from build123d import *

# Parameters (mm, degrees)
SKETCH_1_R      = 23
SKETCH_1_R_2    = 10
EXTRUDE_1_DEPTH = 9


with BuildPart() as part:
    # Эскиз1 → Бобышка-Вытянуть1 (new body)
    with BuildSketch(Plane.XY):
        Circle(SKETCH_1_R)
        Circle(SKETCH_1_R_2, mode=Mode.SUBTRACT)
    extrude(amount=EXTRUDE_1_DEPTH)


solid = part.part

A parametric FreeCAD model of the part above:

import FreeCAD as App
import Part
import Sketcher

V = App.Vector

doc = App.newDocument("Part")
body = doc.addObject("PartDesign::Body", "Body")

# Sketch on XY plane
sketch1 = body.newObject("Sketcher::SketchObject", "Sketch")
sketch1.AttachmentSupport = (doc.getObject("XY_Plane"), [""])
sketch1.MapMode = "FlatFace"
sketch1.addGeometry([
    Part.Circle(V(0, 0, 0), V(0, 0, 1), 23),
    Part.Circle(V(0, 0, 0), V(0, 0, 1), 10),
], False)
sketch1.addConstraint([
    Sketcher.Constraint("Coincident", 0, 3, -1, 1),
    Sketcher.Constraint("Coincident", 1, 3, -1, 1),
    Sketcher.Constraint("Diameter", 0, 46.0),
    Sketcher.Constraint("Diameter", 1, 20.0),
])
pad1 = body.newObject("PartDesign::Pad", "Pad")
pad1.Profile = sketch1
pad1.Length = 9

doc.recompute()
